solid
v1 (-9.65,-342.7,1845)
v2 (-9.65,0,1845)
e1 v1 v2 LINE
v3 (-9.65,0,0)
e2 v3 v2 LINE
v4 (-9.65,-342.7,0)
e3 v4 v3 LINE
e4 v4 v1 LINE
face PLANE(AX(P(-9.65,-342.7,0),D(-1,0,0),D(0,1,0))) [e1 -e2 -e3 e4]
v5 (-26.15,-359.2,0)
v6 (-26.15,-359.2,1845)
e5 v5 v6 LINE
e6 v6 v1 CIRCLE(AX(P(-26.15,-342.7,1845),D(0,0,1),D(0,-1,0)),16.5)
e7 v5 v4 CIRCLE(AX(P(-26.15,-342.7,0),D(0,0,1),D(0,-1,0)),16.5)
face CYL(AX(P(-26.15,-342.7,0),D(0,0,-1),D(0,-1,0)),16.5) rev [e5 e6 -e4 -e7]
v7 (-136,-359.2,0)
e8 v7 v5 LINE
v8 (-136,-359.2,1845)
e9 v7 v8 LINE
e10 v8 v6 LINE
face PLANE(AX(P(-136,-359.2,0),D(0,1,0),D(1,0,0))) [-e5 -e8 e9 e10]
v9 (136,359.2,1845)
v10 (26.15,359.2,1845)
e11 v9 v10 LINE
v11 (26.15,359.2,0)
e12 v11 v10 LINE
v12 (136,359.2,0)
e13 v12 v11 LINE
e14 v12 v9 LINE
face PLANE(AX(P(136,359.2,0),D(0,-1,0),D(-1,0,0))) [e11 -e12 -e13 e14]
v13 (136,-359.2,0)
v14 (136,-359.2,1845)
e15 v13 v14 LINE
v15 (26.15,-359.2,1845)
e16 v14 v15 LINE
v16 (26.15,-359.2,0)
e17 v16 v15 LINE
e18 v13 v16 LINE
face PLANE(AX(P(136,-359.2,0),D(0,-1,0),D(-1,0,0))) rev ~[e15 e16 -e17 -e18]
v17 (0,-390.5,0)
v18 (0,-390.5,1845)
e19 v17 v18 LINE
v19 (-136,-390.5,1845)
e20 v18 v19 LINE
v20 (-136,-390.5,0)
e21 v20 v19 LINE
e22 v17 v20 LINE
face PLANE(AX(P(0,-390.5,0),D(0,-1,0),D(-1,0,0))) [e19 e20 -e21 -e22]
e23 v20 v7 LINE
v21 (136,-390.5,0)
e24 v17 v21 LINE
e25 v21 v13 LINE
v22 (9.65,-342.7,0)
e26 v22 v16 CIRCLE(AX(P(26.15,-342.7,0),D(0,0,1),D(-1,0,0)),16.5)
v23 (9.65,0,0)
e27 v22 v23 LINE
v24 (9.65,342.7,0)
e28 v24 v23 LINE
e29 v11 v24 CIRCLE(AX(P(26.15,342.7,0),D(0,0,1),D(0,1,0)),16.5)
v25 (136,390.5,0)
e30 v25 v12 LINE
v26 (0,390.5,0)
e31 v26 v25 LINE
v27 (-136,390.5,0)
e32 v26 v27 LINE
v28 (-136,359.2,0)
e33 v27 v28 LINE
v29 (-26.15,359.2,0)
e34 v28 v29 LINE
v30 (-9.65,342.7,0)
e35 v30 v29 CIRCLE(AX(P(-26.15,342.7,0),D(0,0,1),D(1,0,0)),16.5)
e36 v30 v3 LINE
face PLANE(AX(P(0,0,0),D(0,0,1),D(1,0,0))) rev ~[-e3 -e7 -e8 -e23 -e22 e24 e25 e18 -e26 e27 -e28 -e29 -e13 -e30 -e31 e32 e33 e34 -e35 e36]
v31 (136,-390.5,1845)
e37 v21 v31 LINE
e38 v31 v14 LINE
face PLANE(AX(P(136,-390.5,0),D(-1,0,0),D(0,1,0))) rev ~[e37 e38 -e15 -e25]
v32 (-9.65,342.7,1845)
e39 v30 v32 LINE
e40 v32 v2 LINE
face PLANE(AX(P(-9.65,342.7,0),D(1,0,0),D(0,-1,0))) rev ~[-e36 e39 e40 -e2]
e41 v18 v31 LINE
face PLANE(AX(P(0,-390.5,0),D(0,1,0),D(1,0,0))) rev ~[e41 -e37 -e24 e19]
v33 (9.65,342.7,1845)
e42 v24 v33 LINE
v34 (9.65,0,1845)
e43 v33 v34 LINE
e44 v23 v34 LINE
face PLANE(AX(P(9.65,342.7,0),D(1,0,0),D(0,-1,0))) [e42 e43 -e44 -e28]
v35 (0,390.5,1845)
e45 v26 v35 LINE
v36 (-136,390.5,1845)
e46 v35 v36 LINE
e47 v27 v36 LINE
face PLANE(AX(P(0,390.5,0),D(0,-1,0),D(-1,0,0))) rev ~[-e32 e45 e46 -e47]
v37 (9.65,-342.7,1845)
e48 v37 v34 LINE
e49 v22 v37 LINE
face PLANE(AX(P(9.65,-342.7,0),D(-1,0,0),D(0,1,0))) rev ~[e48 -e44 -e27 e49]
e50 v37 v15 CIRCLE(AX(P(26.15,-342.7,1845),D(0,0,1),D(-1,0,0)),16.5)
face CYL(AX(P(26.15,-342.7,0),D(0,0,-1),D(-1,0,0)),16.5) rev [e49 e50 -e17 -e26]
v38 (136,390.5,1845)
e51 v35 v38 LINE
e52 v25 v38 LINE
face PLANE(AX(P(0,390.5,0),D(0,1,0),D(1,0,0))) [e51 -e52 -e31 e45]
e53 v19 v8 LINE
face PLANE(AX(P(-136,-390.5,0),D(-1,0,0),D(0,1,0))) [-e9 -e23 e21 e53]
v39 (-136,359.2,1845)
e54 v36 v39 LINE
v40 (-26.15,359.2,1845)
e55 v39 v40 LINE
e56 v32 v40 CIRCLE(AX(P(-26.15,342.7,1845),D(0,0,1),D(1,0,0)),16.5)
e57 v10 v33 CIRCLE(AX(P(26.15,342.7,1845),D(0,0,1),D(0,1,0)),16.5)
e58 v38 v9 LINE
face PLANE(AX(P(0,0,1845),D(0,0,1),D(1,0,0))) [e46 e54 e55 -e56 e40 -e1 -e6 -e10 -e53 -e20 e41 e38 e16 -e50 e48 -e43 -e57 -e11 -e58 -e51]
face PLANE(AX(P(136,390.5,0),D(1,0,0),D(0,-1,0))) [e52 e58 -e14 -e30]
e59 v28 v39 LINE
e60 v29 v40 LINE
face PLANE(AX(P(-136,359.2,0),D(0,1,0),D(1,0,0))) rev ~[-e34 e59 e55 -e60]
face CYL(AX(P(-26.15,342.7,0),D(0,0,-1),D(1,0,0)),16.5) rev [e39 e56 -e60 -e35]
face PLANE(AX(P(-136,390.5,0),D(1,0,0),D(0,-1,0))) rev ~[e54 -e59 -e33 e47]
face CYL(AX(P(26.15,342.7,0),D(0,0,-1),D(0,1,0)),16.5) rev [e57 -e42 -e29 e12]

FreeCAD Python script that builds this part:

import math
import FreeCAD as App
import Part
import Sketcher

V = App.Vector
Q = App.Units.Quantity

doc = App.newDocument("Part")
body = doc.addObject("PartDesign::Body", "Body")

sketch1 = body.newObject("Sketcher::SketchObject", "Sketch")
sketch1.AttachmentSupport = (doc.getObject("XY_Plane"), [""])
sketch1.MapMode = "FlatFace"
sketch1.addGeometry(Part.LineSegment(V(-136, -359.2, 0), V(-136, -390.5, 0)), False)
sketch1.addGeometry(Part.LineSegment(V(-136, -390.5, 0), V(136, -390.5, 0)), False)
sketch1.addGeometry(Part.LineSegment(V(136, -390.5, 0), V(136, -359.2, 0)), False)
sketch1.addGeometry(Part.LineSegment(V(136, -359.2, 0), V(26.15, -359.2, 0)), False)
sketch1.addGeometry(Part.ArcOfCircle(Part.Circle(V(26.15, -342.7, 0), V(0, 0, 1), 16.5), math.radians(180), math.radians(270)), False)
sketch1.addGeometry(Part.LineSegment(V(9.65, -342.7, 0), V(9.65, 342.7, 0)), False)
sketch1.addGeometry(Part.ArcOfCircle(Part.Circle(V(26.15, 342.7, 0), V(0, 0, 1), 16.5), math.radians(90), math.radians(180)), False)
sketch1.addGeometry(Part.LineSegment(V(26.15, 359.2, 0), V(136, 359.2, 0)), False)
sketch1.addGeometry(Part.LineSegment(V(136, 359.2, 0), V(136, 390.5, 0)), False)
sketch1.addGeometry(Part.LineSegment(V(136, 390.5, 0), V(-136, 390.5, 0)), False)
sketch1.addGeometry(Part.LineSegment(V(-136, 390.5, 0), V(-136, 359.2, 0)), False)
sketch1.addGeometry(Part.LineSegment(V(-136, 359.2, 0), V(-26.15, 359.2, 0)), False)
sketch1.addGeometry(Part.ArcOfCircle(Part.Circle(V(-26.15, 342.7, 0), V(0, 0, 1), 16.5), math.radians(0), math.radians(90)), False)
sketch1.addGeometry(Part.LineSegment(V(-9.65, 342.7, 0), V(-9.65, -342.7, 0)), False)
sketch1.addGeometry(Part.ArcOfCircle(Part.Circle(V(-26.15, -342.7, 0), V(0, 0, 1), 16.5), math.radians(-90), math.radians(0)), False)
sketch1.addGeometry(Part.LineSegment(V(-26.15, -359.2, 0), V(-136, -359.2, 0)), False)
sketch1.addConstraint(Sketcher.Constraint("Coincident", 0, 2, 1, 1))
sketch1.addConstraint(Sketcher.Constraint("Coincident", 1, 2, 2, 1))
sketch1.addConstraint(Sketcher.Constraint("Coincident", 2, 2, 3, 1))
sketch1.addConstraint(Sketcher.Constraint("Tangent", 3, 2, 4, 2))
sketch1.addConstraint(Sketcher.Constraint("Tangent", 4, 1, 5, 1))
sketch1.addConstraint(Sketcher.Constraint("Tangent", 5, 2, 6, 2))
sketch1.addConstraint(Sketcher.Constraint("Tangent", 6, 1, 7, 1))
sketch1.addConstraint(Sketcher.Constraint("Coincident", 7, 2, 8, 1))
sketch1.addConstraint(Sketcher.Constraint("Coincident", 8, 2, 9, 1))
sketch1.addConstraint(Sketcher.Constraint("Coincident", 9, 2, 10, 1))
sketch1.addConstraint(Sketcher.Constraint("Coincident", 10, 2, 11, 1))
sketch1.addConstraint(Sketcher.Constraint("Tangent", 11, 2, 12, 2))
sketch1.addConstraint(Sketcher.Constraint("Tangent", 12, 1, 13, 1))
sketch1.addConstraint(Sketcher.Constraint("Tangent", 13, 2, 14, 2))
sketch1.addConstraint(Sketcher.Constraint("Tangent", 14, 1, 15, 1))
sketch1.addConstraint(Sketcher.Constraint("Coincident", 15, 2, 0, 1))
sketch1.addConstraint(Sketcher.Constraint("Vertical", 0))
sketch1.addConstraint(Sketcher.Constraint("Horizontal", 1))
sketch1.addConstraint(Sketcher.Constraint("Vertical", 2))
sketch1.addConstraint(Sketcher.Constraint("Horizontal", 3))
sketch1.addConstraint(Sketcher.Constraint("Vertical", 5))
sketch1.addConstraint(Sketcher.Constraint("Horizontal", 7))
sketch1.addConstraint(Sketcher.Constraint("Vertical", 8))
sketch1.addConstraint(Sketcher.Constraint("Horizontal", 9))
sketch1.addConstraint(Sketcher.Constraint("Vertical", 10))
sketch1.addConstraint(Sketcher.Constraint("Horizontal", 11))
sketch1.addConstraint(Sketcher.Constraint("Vertical", 13))
sketch1.addConstraint(Sketcher.Constraint("Horizontal", 15))
sketch1.addConstraint(Sketcher.Constraint("Equal", 4, 6))
sketch1.addConstraint(Sketcher.Constraint("Equal", 6, 12))
sketch1.addConstraint(Sketcher.Constraint("Equal", 12, 14))
sketch1.addConstraint(Sketcher.Constraint("Symmetric", 4, 3, 12, 3, -1, 1))
sketch1.addConstraint(Sketcher.Constraint("Symmetric", 0, 2, 8, 2, -1, 1))
sketch1.addConstraint(Sketcher.Constraint("Symmetric", 7, 2, 10, 2, -2))
sketch1.addConstraint(Sketcher.Constraint("Symmetric", 2, 2, 15, 2, -2))
sketch1.addConstraint(Sketcher.Constraint("Radius", 4, Q("16.5 mm")))
sketch1.addConstraint(Sketcher.Constraint("DistanceY", 0, 2, 0, 1, Q("31.3 mm")))
sketch1.addConstraint(Sketcher.Constraint("DistanceX", 0, 2, -1, 1, Q("136 mm")))
sketch1.addConstraint(Sketcher.Constraint("DistanceY", 0, 2, -1, 1, Q("390.5 mm")))
sketch1.addConstraint(Sketcher.Constraint("DistanceX", -1, 1, 4, 1, Q("9.65 mm")))
pad1 = body.newObject("PartDesign::Pad", "Pad")
pad1.Profile = sketch1
pad1.Length = 1845

doc.recompute()
